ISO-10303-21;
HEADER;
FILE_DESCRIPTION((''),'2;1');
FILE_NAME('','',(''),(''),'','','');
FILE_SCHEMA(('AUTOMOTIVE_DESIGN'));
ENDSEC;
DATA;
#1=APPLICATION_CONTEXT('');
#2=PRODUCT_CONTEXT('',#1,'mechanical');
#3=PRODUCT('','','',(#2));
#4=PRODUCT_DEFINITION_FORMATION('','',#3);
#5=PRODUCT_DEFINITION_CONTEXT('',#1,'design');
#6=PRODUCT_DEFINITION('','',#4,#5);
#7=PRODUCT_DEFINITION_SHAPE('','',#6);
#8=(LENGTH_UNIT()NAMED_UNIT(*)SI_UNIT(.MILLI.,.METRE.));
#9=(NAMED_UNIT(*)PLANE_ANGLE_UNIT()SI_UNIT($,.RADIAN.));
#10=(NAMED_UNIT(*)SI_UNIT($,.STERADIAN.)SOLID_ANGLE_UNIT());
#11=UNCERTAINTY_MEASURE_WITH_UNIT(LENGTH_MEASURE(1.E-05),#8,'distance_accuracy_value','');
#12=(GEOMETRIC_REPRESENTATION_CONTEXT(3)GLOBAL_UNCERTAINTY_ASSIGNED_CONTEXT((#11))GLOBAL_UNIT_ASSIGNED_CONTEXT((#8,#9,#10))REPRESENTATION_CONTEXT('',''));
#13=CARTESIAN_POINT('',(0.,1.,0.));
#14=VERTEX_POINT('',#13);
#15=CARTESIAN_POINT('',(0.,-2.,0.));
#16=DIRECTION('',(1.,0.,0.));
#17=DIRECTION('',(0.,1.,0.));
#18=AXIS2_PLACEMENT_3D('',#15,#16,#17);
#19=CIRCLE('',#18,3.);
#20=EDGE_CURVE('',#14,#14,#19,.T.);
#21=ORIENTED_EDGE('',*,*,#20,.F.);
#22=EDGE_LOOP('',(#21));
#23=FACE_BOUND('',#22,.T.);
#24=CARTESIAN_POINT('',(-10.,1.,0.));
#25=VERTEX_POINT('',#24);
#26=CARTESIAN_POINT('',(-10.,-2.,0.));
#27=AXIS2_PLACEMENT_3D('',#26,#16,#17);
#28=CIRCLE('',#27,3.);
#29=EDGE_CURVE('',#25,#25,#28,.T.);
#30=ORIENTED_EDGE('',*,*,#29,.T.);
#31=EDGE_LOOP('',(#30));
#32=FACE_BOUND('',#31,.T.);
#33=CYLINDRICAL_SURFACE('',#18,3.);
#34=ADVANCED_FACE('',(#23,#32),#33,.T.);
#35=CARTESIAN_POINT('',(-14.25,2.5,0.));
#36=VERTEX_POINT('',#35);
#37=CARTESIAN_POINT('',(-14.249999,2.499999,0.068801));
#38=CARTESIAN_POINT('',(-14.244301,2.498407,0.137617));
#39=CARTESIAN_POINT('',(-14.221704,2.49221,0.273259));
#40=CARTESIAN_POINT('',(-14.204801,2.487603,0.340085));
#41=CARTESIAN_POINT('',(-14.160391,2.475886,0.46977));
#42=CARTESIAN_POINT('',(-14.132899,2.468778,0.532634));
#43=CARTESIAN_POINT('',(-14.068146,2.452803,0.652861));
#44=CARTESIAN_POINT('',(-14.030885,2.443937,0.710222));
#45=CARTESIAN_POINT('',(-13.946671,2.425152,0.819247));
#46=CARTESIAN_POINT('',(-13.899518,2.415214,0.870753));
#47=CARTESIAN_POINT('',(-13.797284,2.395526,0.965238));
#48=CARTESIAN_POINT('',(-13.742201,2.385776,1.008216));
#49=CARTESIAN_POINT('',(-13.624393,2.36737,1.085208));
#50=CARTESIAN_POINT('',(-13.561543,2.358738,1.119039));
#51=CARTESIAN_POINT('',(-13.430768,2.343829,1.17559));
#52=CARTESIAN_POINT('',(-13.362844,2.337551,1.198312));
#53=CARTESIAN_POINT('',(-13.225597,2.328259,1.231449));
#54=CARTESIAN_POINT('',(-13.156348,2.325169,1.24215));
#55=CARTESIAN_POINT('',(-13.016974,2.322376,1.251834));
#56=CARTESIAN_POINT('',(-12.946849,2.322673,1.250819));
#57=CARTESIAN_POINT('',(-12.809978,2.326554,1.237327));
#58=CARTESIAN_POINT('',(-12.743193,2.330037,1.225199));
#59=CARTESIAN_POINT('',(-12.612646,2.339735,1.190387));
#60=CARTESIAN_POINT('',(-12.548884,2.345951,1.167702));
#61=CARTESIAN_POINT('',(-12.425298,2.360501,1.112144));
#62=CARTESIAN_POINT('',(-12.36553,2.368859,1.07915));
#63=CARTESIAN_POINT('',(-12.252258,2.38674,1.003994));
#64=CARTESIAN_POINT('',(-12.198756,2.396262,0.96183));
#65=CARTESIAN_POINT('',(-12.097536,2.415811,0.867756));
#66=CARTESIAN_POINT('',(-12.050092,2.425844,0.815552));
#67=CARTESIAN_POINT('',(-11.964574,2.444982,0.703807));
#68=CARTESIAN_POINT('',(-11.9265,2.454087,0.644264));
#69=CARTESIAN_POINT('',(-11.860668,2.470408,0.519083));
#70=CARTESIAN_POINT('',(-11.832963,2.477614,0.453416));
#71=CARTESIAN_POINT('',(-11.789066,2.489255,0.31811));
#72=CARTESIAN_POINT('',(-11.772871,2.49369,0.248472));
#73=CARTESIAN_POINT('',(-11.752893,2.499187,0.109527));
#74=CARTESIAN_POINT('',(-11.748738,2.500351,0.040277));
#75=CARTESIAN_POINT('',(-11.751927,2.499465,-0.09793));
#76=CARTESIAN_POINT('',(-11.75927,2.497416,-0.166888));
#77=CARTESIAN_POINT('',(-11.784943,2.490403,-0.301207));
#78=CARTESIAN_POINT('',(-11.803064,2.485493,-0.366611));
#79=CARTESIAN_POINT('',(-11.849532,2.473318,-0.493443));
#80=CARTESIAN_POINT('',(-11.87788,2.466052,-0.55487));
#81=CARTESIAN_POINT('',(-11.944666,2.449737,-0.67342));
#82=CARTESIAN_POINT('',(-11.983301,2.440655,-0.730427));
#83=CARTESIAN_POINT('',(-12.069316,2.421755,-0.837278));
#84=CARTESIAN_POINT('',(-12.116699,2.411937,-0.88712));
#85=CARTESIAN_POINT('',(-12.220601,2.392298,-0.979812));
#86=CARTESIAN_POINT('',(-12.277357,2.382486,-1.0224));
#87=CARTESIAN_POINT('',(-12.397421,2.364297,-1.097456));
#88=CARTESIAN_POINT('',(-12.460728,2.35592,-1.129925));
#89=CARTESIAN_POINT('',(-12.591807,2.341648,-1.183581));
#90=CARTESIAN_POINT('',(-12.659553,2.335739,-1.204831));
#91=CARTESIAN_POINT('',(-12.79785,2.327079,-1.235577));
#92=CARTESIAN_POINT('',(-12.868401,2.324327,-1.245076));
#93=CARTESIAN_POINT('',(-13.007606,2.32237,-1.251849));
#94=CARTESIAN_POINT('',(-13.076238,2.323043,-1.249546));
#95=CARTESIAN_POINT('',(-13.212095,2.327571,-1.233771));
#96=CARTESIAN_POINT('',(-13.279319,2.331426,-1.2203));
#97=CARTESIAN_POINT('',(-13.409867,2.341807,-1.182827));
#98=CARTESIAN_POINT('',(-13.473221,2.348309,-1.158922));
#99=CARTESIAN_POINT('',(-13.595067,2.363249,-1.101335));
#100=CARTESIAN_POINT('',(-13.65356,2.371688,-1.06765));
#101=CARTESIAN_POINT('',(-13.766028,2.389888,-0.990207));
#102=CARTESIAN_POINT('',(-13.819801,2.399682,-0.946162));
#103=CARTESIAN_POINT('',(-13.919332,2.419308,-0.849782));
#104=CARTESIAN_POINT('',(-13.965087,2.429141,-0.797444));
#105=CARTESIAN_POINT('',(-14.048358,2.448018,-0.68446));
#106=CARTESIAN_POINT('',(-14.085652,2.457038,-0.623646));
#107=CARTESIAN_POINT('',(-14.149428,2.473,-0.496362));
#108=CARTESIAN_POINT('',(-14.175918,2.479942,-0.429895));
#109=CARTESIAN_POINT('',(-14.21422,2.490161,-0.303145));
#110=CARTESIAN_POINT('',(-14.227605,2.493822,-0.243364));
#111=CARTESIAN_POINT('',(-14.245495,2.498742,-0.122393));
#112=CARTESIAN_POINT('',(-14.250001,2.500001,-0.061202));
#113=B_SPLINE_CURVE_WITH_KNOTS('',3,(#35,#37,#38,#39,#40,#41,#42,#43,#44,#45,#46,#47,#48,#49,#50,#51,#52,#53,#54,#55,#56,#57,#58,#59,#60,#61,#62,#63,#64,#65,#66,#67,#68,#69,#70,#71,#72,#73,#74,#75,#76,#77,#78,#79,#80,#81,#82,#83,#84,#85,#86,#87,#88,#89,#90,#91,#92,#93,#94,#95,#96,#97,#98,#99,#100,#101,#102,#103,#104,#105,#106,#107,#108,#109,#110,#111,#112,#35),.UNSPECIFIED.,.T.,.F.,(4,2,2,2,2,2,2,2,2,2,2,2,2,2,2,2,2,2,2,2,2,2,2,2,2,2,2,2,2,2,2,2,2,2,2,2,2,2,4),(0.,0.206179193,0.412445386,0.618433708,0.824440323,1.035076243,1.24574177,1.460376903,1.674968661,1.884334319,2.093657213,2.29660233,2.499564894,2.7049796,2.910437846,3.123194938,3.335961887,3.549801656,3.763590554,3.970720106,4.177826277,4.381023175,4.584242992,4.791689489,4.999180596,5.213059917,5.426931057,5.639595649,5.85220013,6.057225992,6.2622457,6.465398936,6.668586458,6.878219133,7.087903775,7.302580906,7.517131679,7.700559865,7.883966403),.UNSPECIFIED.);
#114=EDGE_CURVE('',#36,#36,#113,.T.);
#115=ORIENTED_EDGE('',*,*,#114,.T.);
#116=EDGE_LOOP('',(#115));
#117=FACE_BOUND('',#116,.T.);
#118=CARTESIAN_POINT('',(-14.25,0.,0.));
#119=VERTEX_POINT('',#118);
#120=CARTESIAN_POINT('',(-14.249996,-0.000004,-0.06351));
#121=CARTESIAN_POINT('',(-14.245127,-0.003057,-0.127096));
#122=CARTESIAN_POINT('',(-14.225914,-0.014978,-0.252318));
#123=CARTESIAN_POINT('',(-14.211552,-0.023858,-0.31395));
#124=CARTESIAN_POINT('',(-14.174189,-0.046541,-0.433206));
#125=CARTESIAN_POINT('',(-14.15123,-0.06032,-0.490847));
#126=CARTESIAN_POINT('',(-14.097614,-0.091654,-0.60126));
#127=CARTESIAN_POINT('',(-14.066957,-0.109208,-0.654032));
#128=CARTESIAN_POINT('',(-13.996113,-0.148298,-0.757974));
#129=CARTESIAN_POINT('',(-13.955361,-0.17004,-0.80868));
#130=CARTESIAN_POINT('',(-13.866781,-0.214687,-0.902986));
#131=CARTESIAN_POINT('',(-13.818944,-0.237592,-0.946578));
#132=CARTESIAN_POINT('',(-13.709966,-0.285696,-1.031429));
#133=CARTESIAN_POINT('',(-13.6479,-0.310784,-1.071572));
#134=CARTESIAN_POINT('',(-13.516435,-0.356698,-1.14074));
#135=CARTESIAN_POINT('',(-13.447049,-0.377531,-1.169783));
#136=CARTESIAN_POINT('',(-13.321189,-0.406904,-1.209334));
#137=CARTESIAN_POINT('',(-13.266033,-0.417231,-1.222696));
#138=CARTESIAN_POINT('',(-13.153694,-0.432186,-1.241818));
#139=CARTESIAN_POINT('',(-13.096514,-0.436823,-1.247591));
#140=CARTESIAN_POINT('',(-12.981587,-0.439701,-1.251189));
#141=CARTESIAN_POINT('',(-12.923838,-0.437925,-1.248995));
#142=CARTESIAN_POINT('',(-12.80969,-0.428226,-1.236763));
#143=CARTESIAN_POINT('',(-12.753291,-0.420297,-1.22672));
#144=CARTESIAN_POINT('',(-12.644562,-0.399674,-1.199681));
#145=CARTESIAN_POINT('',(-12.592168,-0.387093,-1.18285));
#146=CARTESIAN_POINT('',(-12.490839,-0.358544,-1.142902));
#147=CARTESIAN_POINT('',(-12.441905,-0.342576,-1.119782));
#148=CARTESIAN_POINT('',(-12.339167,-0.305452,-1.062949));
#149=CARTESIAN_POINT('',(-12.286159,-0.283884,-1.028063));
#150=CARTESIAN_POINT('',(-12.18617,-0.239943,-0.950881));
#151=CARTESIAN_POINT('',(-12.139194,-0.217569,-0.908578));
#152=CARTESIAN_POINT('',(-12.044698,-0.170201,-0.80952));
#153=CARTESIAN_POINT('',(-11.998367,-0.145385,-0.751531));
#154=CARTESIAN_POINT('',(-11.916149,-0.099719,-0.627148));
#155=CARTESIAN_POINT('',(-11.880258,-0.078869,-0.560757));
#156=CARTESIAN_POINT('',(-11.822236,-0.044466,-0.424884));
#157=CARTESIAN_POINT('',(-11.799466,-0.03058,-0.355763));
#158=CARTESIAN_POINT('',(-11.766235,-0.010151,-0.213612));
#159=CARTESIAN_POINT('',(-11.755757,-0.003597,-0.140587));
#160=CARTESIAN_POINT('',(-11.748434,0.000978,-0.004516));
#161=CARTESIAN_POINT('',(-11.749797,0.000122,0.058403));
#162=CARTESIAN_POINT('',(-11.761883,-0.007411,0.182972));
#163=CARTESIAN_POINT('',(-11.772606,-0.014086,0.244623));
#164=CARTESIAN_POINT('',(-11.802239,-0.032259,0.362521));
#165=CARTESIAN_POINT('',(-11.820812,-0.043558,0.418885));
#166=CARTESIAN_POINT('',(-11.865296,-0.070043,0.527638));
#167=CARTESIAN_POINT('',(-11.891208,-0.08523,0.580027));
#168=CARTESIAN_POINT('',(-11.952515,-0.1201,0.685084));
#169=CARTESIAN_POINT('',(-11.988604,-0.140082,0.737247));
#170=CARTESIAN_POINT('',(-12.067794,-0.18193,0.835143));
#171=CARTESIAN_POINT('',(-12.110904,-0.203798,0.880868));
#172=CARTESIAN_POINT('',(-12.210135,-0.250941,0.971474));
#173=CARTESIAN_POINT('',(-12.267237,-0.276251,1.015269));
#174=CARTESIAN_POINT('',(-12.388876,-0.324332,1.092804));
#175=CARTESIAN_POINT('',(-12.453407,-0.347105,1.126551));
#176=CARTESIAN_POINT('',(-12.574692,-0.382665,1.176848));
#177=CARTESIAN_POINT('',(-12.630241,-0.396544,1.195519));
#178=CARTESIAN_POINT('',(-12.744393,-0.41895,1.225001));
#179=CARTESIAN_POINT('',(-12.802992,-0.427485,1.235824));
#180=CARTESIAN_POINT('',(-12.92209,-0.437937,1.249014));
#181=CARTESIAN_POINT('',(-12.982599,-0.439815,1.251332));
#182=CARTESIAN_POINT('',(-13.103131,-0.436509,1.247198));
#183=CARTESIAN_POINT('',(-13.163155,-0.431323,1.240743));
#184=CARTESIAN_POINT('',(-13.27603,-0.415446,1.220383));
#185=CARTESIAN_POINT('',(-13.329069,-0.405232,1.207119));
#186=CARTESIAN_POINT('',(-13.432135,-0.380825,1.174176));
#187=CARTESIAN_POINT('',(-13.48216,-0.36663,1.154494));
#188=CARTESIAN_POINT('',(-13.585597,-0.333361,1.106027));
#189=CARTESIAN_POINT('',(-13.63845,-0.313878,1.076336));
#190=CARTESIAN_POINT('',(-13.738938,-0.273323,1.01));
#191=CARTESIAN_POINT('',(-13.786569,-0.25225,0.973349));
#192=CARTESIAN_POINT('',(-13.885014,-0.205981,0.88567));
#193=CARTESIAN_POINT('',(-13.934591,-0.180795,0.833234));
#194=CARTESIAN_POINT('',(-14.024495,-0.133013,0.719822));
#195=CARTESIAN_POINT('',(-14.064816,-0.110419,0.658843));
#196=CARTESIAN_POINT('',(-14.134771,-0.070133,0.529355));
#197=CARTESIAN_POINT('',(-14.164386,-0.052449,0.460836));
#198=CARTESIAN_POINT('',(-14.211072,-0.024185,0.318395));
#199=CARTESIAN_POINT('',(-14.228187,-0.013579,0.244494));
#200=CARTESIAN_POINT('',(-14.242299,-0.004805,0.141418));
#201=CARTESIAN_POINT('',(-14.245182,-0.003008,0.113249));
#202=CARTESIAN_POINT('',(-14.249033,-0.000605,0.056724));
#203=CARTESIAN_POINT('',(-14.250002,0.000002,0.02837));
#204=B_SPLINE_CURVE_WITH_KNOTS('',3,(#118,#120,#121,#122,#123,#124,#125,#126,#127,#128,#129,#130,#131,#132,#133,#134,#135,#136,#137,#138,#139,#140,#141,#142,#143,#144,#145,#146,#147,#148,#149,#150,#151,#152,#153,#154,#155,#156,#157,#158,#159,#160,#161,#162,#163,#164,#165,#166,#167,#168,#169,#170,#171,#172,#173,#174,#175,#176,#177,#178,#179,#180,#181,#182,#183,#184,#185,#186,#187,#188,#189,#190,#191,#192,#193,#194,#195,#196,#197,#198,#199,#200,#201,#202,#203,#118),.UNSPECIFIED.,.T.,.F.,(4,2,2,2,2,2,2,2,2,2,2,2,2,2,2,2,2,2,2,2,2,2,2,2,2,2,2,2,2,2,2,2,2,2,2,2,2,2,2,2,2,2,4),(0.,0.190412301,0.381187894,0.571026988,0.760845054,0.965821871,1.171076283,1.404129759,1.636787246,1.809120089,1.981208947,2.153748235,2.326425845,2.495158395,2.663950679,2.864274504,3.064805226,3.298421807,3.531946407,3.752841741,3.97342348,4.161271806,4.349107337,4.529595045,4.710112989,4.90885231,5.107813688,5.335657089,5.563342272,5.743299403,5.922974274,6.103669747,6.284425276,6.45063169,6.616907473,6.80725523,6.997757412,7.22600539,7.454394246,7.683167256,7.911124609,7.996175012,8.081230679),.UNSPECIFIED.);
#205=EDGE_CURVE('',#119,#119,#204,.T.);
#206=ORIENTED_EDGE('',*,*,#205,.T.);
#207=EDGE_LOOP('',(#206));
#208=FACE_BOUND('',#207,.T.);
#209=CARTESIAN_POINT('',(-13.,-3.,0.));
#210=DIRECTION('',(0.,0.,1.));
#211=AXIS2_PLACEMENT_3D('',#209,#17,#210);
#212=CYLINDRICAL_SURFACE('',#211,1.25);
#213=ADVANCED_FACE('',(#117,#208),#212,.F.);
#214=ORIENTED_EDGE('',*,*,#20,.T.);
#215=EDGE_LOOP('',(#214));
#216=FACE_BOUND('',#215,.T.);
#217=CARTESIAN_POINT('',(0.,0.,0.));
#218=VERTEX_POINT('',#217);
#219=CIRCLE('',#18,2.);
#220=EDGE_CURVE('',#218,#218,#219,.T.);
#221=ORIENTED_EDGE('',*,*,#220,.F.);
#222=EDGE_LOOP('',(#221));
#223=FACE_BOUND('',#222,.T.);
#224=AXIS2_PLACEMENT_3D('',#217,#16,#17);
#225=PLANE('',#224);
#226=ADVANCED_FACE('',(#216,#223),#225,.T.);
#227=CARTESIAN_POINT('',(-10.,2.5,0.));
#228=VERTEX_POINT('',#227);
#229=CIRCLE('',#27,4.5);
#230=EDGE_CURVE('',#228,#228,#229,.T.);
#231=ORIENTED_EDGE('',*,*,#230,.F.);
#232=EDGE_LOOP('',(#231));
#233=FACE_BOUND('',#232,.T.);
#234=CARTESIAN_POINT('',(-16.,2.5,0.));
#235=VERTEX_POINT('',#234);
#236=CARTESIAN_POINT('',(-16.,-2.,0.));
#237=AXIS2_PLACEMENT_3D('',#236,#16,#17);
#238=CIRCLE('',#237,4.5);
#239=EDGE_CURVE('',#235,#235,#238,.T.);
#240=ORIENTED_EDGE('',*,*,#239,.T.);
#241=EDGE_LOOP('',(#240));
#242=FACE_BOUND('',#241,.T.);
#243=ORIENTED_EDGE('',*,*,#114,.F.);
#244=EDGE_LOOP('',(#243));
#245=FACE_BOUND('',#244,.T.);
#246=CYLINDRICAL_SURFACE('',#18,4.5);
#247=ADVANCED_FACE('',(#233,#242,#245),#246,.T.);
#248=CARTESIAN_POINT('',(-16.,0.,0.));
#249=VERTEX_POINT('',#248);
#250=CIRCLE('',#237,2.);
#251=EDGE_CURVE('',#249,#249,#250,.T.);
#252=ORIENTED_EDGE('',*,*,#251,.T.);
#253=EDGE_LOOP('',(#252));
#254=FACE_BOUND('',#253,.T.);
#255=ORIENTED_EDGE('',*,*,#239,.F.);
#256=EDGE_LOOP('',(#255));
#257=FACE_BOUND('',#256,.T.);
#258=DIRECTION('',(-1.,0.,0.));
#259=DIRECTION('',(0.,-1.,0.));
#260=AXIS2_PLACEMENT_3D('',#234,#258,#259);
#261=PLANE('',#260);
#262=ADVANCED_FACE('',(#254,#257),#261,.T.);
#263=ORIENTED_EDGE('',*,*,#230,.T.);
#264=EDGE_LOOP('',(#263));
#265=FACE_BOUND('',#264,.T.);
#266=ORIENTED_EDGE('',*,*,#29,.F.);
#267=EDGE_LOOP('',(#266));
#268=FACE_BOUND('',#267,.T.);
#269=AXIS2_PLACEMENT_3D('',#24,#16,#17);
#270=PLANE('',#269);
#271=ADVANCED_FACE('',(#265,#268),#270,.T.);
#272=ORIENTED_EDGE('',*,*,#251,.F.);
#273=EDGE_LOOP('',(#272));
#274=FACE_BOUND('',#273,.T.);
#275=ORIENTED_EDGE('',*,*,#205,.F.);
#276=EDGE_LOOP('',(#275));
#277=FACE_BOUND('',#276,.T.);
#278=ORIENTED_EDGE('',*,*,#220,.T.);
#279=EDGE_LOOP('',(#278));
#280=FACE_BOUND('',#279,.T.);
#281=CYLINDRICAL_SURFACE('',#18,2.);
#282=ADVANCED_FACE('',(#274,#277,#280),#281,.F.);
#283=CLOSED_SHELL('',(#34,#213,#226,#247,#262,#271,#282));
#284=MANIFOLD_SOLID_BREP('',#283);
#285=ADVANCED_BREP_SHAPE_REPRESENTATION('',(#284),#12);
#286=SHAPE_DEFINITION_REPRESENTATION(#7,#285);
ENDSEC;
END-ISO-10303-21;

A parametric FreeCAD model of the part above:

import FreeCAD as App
import Part
import Sketcher
Q = App.Units.Quantity

doc = App.newDocument("Part")
body = doc.addObject("PartDesign::Body", "Body")

# Sketch on XY plane
sketch1 = doc.addObject("Sketcher::SketchObject", "Sketch")
body.addObject(sketch1)
sketch1.AttachmentSupport = (doc.XY_Plane, [""])
sketch1.MapMode = "FlatFace"
sketch1.addGeometry([
    Part.LineSegment(App.Vector(0, 0, 0), App.Vector(0, 1, 0)),  # 0
    Part.LineSegment(App.Vector(0, 1, 0), App.Vector(-10, 1, 0)),  # 1
    Part.LineSegment(App.Vector(-10, 1, 0), App.Vector(-10, 2.5, 0)),  # 2
    Part.LineSegment(App.Vector(-10, 2.5, 0), App.Vector(-16, 2.5, 0)),  # 3
    Part.LineSegment(App.Vector(-16, 2.5, 0), App.Vector(-16, 0, 0)),  # 4
    Part.LineSegment(App.Vector(-16, 0, 0), App.Vector(0, 0, 0)),  # 5
], False)
sketch1.addGeometry(Part.LineSegment(App.Vector(0, -2, 0), App.Vector(-16, -2, 0)), True)  # axis
sketch1.addConstraint([
    Sketcher.Constraint("Coincident", 0, 2, 1, 1),
    Sketcher.Constraint("Coincident", 1, 2, 2, 1),
    Sketcher.Constraint("Coincident", 2, 2, 3, 1),
    Sketcher.Constraint("Coincident", 3, 2, 4, 1),
    Sketcher.Constraint("Coincident", 4, 2, 5, 1),
    Sketcher.Constraint("Coincident", 5, 2, 0, 1),
    Sketcher.Constraint("Vertical", 0),
    Sketcher.Constraint("Horizontal", 1),
    Sketcher.Constraint("Vertical", 2),
    Sketcher.Constraint("Horizontal", 3),
    Sketcher.Constraint("Vertical", 4),
    Sketcher.Constraint("Horizontal", 5),
    Sketcher.Constraint("Horizontal", 6),
    Sketcher.Constraint("Coincident", 5, 2, -1, 1),
    Sketcher.Constraint("PointOnObject", 6, 1, -2),
    Sketcher.Constraint("Vertical", 4, 2, 6, 2),
    Sketcher.Constraint("DistanceX", 1, 2, 1, 1, Q("10 mm")),
    Sketcher.Constraint("DistanceX", 3, 2, 3, 1, Q("6 mm")),
    Sketcher.Constraint("DistanceY", 0, 1, 0, 2, Q("1 mm")),
    Sketcher.Constraint("DistanceY", 2, 1, 2, 2, Q("1.5 mm")),
    Sketcher.Constraint("DistanceY", 6, 1, -1, 1, Q("2 mm")),
])
revolution = doc.addObject("PartDesign::Revolution", "Revolution")
body.addObject(revolution)
revolution.Profile = sketch1
revolution.ReferenceAxis = (sketch1, ["Axis0"])
revolution.Angle = 360

# Sketch on XZ plane
sketch2 = doc.addObject("Sketcher::SketchObject", "Sketch001")
body.addObject(sketch2)
sketch2.AttachmentSupport = (doc.XZ_Plane, [""])
sketch2.MapMode = "FlatFace"
sketch2.AttachmentOffset = App.Placement(App.Vector(0, 0, -3), App.Rotation())
sketch2.addGeometry(Part.Circle(App.Vector(-13, 0, 0), App.Vector(0, 0, 1), 1.2), False)
sketch2.addConstraint([
    Sketcher.Constraint("PointOnObject", 0, 3, -1),
    Sketcher.Constraint("Diameter", 0, Q("2.5 mm")),
    Sketcher.Constraint("DistanceX", 0, 3, -1, 1, Q("13 mm")),
])
pocket1 = doc.addObject("PartDesign::Pocket", "Pocket")
body.addObject(pocket1)
pocket1.Profile = sketch2
pocket1.Length = 6
pocket1.Reversed = True

doc.recompute()
